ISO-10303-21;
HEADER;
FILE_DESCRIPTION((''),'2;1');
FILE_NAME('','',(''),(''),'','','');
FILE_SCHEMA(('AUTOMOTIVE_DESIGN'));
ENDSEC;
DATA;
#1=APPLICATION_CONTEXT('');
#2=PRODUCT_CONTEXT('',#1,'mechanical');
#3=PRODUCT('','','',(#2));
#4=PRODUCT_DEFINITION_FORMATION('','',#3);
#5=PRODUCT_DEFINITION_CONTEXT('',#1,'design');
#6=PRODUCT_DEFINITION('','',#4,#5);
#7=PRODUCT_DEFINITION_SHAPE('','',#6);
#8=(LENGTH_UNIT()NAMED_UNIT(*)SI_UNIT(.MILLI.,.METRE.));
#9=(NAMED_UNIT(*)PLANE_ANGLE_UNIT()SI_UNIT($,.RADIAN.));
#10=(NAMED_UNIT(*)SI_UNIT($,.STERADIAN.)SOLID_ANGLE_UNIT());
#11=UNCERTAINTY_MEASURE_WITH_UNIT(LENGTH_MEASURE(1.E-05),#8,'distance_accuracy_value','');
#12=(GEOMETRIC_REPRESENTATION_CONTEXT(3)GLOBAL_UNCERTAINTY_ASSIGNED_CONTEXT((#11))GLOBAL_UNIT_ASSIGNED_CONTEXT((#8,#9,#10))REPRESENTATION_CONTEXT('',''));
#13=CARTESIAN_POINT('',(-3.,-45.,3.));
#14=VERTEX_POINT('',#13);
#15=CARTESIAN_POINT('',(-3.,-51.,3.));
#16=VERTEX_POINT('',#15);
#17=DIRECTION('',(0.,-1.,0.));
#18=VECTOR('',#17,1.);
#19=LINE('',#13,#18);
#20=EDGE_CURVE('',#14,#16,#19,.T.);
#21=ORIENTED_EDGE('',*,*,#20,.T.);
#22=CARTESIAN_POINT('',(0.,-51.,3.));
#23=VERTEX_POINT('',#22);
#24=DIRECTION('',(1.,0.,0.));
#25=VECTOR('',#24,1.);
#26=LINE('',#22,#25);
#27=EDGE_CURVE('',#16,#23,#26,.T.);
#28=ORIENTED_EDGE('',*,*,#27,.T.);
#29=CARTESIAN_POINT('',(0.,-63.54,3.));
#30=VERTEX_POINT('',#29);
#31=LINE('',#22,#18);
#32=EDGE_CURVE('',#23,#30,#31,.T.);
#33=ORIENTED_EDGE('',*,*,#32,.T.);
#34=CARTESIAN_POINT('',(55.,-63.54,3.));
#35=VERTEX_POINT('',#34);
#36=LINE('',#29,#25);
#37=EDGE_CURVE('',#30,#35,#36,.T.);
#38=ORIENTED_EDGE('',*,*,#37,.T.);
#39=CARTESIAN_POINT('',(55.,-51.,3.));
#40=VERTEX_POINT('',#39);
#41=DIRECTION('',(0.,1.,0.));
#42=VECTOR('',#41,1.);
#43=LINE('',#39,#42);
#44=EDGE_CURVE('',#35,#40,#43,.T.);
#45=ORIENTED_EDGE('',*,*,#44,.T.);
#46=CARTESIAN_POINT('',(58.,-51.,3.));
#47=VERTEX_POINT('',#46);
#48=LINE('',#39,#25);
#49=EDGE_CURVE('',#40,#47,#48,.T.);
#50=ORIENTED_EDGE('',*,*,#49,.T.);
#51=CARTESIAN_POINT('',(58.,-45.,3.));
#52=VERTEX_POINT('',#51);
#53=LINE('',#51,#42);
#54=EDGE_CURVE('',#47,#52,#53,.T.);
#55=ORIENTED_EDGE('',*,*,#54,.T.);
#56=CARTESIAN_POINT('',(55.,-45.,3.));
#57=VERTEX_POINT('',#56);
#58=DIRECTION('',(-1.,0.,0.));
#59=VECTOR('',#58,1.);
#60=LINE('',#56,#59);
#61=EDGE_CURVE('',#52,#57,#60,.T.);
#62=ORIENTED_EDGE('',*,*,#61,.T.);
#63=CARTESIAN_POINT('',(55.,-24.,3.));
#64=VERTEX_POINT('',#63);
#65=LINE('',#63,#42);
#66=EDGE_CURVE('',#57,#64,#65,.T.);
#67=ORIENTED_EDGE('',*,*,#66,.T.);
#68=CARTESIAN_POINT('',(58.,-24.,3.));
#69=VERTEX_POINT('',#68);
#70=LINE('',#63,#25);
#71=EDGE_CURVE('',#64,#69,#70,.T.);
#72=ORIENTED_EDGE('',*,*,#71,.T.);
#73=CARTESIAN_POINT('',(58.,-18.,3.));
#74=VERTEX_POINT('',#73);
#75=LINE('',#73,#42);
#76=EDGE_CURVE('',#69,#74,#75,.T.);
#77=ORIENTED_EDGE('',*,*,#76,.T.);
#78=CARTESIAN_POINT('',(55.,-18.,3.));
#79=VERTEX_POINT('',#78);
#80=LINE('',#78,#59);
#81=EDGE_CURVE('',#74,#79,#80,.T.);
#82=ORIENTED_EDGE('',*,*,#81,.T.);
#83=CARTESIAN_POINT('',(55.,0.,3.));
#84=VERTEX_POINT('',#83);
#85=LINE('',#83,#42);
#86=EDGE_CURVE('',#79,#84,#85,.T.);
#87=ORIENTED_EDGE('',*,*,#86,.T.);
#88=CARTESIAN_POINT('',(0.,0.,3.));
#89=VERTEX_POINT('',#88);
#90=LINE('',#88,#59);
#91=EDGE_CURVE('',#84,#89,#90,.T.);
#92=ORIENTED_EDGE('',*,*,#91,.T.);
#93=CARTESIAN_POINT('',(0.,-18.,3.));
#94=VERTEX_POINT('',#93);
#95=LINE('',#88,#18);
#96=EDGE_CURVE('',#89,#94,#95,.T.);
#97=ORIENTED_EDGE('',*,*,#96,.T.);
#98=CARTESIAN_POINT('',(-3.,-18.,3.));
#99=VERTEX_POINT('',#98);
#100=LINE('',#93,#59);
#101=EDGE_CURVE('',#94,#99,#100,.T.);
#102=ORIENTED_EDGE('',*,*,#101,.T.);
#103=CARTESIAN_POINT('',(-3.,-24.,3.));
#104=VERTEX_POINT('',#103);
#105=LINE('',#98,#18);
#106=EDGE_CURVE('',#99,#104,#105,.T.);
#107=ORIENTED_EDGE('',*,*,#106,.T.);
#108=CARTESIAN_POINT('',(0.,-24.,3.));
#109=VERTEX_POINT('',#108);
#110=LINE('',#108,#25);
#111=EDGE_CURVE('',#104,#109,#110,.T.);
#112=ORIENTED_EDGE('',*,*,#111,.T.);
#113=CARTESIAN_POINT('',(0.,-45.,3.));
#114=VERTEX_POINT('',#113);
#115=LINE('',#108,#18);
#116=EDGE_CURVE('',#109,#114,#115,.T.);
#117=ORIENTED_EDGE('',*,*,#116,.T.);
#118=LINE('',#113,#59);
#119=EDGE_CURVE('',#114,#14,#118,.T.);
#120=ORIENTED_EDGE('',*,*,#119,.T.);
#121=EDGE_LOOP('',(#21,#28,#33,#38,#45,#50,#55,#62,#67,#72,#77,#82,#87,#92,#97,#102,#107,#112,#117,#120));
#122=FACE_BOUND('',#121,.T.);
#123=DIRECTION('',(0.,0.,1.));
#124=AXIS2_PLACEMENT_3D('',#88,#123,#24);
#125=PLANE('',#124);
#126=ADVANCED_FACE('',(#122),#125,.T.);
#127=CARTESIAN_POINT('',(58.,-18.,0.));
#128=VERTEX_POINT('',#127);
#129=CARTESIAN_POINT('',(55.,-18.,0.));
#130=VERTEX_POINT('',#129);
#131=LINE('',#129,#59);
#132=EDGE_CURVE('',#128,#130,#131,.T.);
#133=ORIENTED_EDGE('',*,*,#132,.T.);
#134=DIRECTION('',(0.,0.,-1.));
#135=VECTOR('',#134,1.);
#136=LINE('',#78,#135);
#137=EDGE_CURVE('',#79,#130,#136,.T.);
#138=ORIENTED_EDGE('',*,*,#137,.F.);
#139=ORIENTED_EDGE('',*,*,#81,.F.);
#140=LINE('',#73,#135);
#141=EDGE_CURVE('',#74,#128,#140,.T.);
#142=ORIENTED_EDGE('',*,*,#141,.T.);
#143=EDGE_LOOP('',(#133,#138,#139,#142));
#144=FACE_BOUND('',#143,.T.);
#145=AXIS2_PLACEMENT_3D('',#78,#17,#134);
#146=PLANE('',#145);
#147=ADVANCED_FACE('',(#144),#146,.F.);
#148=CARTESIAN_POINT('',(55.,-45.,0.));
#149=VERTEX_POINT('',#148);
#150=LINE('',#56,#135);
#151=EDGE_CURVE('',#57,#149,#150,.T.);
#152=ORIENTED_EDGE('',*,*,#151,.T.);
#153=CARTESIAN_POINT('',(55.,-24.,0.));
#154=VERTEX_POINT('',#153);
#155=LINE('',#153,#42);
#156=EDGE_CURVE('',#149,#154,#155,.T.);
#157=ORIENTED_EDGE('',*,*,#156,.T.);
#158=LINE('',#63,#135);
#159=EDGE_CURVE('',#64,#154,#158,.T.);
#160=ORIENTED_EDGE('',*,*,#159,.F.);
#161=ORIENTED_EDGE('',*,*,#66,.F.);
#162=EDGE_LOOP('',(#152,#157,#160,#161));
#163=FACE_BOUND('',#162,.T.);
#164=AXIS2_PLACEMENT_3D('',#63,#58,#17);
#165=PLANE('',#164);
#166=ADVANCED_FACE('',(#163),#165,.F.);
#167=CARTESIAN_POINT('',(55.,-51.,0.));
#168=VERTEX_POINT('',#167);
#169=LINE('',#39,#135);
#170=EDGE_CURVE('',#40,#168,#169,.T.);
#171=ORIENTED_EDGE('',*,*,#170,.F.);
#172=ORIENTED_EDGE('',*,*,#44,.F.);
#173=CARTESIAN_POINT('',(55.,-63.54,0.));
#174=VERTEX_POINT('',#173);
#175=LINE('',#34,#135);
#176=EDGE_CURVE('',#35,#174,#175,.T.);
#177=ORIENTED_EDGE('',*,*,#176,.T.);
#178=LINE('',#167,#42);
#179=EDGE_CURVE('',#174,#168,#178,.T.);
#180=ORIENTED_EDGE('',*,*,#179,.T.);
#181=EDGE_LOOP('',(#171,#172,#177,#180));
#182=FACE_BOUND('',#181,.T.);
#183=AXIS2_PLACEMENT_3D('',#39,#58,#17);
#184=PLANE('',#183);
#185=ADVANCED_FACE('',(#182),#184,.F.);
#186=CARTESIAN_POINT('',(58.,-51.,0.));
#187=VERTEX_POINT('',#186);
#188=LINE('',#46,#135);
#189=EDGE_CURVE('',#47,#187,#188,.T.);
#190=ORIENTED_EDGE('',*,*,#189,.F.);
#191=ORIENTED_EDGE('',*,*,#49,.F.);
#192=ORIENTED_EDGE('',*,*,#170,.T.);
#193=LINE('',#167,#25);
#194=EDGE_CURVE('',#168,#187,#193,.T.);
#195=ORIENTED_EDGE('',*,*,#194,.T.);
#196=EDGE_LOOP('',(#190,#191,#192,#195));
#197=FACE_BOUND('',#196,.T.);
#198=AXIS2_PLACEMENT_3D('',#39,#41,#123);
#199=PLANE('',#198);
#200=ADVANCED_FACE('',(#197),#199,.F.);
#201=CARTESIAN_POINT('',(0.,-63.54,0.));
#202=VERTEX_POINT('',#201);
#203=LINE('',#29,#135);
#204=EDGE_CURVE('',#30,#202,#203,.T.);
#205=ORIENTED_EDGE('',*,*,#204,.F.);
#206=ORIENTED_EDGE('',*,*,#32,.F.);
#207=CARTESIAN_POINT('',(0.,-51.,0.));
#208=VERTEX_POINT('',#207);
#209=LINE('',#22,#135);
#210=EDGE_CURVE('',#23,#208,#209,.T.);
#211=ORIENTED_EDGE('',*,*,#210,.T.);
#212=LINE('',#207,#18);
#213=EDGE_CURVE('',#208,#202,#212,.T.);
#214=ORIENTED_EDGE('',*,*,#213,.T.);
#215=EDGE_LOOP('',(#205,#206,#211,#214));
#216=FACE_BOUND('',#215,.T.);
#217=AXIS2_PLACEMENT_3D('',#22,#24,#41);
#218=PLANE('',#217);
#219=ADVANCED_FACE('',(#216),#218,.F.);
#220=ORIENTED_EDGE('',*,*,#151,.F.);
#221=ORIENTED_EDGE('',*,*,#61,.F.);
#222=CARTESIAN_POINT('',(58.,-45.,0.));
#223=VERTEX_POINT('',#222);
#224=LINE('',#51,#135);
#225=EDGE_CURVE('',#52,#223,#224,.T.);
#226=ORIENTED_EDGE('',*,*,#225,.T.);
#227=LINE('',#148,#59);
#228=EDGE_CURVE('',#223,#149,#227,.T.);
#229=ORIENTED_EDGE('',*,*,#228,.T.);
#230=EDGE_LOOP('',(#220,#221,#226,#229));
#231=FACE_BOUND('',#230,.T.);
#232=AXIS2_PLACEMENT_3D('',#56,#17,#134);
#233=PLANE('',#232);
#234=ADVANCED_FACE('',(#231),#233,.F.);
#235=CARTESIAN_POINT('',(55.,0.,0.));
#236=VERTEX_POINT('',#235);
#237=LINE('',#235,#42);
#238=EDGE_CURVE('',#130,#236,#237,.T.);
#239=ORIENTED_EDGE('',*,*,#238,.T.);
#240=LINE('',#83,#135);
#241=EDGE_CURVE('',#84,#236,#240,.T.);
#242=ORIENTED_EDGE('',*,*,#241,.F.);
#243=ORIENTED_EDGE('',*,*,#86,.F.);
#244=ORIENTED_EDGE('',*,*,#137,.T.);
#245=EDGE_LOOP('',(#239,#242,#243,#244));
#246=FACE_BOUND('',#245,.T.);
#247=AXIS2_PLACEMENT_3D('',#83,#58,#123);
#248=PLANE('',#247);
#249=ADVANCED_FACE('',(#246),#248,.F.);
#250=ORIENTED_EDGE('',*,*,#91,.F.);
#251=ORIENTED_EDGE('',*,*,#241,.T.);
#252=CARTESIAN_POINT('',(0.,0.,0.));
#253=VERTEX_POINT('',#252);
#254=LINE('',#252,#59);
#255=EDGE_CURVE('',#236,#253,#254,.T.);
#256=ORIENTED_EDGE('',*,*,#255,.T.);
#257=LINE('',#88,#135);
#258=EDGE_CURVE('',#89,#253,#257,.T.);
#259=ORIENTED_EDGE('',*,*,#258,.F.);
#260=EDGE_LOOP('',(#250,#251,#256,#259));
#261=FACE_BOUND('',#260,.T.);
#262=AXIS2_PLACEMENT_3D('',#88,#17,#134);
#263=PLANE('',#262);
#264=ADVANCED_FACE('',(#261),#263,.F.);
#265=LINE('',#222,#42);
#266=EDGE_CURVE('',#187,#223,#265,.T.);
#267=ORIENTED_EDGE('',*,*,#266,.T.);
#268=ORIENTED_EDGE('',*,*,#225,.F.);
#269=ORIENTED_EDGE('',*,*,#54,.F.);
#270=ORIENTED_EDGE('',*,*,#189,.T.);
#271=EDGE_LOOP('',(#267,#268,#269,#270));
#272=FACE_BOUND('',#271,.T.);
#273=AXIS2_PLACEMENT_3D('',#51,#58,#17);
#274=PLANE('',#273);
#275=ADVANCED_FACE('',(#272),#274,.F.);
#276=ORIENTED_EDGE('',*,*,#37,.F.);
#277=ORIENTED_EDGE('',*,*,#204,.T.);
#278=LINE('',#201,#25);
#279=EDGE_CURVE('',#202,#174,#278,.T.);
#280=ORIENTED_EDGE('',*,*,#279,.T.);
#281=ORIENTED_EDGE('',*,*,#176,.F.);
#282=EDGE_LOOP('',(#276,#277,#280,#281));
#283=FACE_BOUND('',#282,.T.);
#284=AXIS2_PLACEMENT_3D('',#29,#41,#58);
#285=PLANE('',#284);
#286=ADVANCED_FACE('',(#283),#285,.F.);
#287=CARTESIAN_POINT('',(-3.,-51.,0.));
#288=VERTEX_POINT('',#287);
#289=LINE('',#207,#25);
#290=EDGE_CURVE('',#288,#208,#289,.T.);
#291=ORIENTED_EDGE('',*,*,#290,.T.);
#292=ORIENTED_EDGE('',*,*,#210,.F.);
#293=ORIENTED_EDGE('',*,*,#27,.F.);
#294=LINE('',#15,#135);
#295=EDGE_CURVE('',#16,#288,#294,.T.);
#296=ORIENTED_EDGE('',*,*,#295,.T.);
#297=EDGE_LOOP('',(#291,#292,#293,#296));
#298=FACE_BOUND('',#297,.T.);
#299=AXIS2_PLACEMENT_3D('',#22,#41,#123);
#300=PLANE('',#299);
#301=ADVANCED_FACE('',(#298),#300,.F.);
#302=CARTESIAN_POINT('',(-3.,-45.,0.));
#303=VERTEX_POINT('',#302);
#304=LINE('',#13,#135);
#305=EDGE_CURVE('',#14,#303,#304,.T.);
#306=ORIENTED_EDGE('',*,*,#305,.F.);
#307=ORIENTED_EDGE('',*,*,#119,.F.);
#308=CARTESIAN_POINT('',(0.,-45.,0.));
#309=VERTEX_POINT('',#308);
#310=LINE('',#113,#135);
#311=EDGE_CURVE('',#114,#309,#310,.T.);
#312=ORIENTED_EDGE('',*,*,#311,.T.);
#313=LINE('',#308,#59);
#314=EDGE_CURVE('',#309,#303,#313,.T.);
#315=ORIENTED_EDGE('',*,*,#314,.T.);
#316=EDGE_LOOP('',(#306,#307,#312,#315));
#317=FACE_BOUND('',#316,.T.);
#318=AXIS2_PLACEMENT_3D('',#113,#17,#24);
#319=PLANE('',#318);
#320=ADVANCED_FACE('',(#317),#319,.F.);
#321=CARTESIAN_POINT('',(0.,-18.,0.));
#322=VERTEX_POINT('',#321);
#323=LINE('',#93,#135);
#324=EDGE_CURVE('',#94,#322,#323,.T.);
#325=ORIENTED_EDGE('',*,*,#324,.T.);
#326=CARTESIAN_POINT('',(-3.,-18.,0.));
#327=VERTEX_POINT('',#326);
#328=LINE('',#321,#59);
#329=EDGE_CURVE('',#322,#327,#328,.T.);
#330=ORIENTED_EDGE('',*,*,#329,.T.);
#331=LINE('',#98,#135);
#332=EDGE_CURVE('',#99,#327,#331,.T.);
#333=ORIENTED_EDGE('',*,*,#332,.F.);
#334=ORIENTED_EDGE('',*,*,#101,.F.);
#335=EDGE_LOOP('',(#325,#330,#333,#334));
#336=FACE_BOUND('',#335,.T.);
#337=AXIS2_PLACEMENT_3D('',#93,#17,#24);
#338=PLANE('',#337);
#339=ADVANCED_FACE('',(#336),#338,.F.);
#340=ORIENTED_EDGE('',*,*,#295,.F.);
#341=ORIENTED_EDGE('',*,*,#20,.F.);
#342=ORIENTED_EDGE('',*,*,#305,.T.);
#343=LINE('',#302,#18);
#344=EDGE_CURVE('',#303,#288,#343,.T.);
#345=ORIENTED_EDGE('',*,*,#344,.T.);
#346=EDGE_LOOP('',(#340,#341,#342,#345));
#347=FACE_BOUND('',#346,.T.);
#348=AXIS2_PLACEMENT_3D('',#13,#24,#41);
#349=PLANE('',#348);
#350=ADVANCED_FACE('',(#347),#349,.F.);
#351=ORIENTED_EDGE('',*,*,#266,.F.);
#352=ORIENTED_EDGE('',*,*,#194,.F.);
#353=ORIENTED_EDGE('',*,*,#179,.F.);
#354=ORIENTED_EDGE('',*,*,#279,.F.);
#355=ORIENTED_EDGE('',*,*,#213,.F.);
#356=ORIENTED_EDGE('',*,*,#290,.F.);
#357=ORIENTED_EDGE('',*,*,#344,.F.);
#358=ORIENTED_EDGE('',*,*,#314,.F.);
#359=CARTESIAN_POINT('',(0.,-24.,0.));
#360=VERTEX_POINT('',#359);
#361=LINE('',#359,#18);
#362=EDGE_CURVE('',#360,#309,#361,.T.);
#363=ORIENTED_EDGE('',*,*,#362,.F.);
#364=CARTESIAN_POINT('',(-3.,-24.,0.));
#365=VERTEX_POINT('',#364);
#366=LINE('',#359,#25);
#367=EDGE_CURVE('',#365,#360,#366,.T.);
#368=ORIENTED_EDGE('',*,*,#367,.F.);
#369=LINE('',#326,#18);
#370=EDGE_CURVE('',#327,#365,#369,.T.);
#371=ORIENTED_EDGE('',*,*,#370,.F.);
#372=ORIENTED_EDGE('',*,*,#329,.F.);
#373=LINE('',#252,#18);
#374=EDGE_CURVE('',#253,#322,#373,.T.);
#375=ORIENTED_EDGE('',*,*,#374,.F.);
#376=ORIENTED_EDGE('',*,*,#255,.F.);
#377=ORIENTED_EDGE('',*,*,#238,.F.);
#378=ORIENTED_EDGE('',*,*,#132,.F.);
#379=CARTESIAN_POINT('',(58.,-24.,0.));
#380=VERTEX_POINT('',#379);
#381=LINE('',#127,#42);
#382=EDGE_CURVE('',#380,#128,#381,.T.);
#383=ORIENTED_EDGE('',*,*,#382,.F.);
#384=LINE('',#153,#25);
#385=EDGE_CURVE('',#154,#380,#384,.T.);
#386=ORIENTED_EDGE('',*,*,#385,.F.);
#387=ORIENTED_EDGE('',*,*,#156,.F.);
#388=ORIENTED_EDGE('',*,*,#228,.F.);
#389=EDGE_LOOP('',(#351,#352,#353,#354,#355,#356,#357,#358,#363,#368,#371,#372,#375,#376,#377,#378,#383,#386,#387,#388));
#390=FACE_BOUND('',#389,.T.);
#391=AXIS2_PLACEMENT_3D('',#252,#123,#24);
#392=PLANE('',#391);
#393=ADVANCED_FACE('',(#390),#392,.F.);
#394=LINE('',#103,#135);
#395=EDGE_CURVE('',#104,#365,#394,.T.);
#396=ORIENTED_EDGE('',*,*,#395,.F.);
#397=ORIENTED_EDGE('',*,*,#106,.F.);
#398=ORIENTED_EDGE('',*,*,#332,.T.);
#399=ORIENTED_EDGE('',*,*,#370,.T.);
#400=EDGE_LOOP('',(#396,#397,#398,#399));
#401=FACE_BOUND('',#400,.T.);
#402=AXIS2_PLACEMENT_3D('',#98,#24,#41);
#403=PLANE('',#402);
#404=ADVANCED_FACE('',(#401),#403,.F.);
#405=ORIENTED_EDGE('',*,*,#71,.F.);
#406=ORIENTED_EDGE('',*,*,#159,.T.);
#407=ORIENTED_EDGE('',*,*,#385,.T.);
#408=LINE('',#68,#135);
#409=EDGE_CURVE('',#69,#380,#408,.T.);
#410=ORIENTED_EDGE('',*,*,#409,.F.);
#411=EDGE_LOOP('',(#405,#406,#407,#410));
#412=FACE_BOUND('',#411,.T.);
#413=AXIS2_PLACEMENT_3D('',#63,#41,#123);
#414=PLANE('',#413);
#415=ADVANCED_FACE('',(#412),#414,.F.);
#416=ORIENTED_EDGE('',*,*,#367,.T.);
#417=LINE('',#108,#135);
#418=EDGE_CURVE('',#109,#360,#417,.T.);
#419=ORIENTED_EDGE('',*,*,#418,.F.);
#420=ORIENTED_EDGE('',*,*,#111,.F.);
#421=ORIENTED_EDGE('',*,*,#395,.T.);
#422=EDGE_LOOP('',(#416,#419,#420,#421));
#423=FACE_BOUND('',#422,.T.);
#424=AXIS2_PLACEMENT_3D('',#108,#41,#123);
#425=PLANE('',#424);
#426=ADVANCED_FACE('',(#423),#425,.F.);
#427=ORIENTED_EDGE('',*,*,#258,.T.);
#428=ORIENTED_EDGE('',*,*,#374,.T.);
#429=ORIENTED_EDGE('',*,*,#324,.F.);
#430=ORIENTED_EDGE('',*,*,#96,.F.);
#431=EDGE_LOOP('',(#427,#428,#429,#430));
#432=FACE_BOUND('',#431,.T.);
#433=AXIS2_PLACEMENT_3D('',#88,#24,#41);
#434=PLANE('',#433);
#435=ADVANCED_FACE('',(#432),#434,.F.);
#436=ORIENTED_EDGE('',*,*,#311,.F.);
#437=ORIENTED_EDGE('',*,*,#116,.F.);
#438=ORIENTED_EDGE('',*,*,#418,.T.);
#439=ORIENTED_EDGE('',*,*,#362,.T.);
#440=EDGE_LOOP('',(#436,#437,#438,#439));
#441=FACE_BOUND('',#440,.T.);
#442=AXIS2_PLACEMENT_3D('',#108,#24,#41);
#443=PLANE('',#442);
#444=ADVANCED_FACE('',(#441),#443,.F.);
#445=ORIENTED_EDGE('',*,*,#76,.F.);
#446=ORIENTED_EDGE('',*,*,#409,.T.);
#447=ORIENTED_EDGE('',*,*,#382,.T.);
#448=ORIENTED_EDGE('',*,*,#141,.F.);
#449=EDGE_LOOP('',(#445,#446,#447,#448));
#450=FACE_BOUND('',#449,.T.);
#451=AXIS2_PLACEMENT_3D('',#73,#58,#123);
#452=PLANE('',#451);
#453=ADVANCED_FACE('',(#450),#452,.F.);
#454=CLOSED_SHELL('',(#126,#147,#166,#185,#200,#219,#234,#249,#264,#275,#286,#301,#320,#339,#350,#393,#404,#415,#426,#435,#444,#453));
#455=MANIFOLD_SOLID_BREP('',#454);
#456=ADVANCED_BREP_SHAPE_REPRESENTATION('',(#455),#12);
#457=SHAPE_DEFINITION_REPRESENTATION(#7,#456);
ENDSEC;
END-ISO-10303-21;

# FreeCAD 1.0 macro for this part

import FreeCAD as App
import Part
import Sketcher

V = App.Vector
Q = App.Units.Quantity


def add_polygon(sketch, points):
    """Adds a closed chain of lines whose ends are joined by coincident constraints."""
    first, n = sketch.GeometryCount, len(points)
    for a, b in zip(points, points[1:] + points[:1]):
        sketch.addGeometry(Part.LineSegment(App.Vector(*a, 0), App.Vector(*b, 0)), False)
    for i in range(n):
        sketch.addConstraint(Sketcher.Constraint("Coincident", first + i, 2, first + (i + 1) % n, 1))

doc = App.newDocument("Part")
body = doc.addObject("PartDesign::Body", "Body")

# Sketch on XY plane
sketch1 = body.newObject("Sketcher::SketchObject", "Sketch")
sketch1.AttachmentSupport = (doc.getObject("XY_Plane"), [""])
sketch1.MapMode = "FlatFace"
add_polygon(sketch1, [(55, 0), (0, 0), (0, -18), (-3, -18), (-3, -24), (0, -24), (0, -45), (-3, -45), (-3, -51), (0, -51), (0, -63.5), (55, -63.5), (55, -51), (58, -51), (58, -45), (55, -45), (55, -24), (58, -24), (58, -18), (55, -18)])  # lines 0-19
sketch1.addConstraint(Sketcher.Constraint("Horizontal", 0))
sketch1.addConstraint(Sketcher.Constraint("Vertical", 1))
sketch1.addConstraint(Sketcher.Constraint("Horizontal", 2))
sketch1.addConstraint(Sketcher.Constraint("Vertical", 3))
sketch1.addConstraint(Sketcher.Constraint("Horizontal", 4))
sketch1.addConstraint(Sketcher.Constraint("Vertical", 5))
sketch1.addConstraint(Sketcher.Constraint("Horizontal", 6))
sketch1.addConstraint(Sketcher.Constraint("Vertical", 7))
sketch1.addConstraint(Sketcher.Constraint("Horizontal", 8))
sketch1.addConstraint(Sketcher.Constraint("Vertical", 9))
sketch1.addConstraint(Sketcher.Constraint("Horizontal", 10))
sketch1.addConstraint(Sketcher.Constraint("Vertical", 11))
sketch1.addConstraint(Sketcher.Constraint("Horizontal", 12))
sketch1.addConstraint(Sketcher.Constraint("Vertical", 13))
sketch1.addConstraint(Sketcher.Constraint("Horizontal", 14))
sketch1.addConstraint(Sketcher.Constraint("Vertical", 15))
sketch1.addConstraint(Sketcher.Constraint("Horizontal", 16))
sketch1.addConstraint(Sketcher.Constraint("Vertical", 17))
sketch1.addConstraint(Sketcher.Constraint("Horizontal", 18))
sketch1.addConstraint(Sketcher.Constraint("Vertical", 19))
sketch1.addConstraint(Sketcher.Constraint("Coincident", 0, 2, -1, 1))
sketch1.addConstraint(Sketcher.Constraint("PointOnObject", 4, 2, -2))
sketch1.addConstraint(Sketcher.Constraint("PointOnObject", 8, 2, -2))
sketch1.addConstraint(Sketcher.Constraint("Horizontal", 8, 2, 11, 2))
sketch1.addConstraint(Sketcher.Constraint("Horizontal", 6, 2, 13, 2))
sketch1.addConstraint(Sketcher.Constraint("Horizontal", 4, 2, 15, 2))
sketch1.addConstraint(Sketcher.Constraint("Horizontal", 2, 2, 17, 2))
sketch1.addConstraint(Sketcher.Constraint("Vertical", 3, 2, 6, 2))
sketch1.addConstraint(Sketcher.Constraint("Vertical", 11, 2, 14, 2))
sketch1.addConstraint(Sketcher.Constraint("Vertical", 13, 2, 16, 2))
sketch1.addConstraint(Sketcher.Constraint("Vertical", 15, 2, 18, 2))
sketch1.addConstraint(Sketcher.Constraint("Equal", 8, 12))
sketch1.addConstraint(Sketcher.Constraint("Equal", 3, 7))
sketch1.addConstraint(Sketcher.Constraint("DistanceX", 0, 2, 0, 1, Q("55 mm")))
sketch1.addConstraint(Sketcher.Constraint("DistanceX", 2, 2, 2, 1, Q("3 mm")))
sketch1.addConstraint(Sketcher.Constraint("DistanceY", 1, 2, 1, 1, Q("18 mm")))
sketch1.addConstraint(Sketcher.Constraint("DistanceY", 3, 2, 3, 1, Q("6 mm")))
sketch1.addConstraint(Sketcher.Constraint("DistanceY", 5, 2, 5, 1, Q("21 mm")))
sketch1.addConstraint(Sketcher.Constraint("DistanceY", 9, 2, 9, 1, Q("12.54 mm")))
pad1 = body.newObject("PartDesign::Pad", "Pad")
pad1.Profile = sketch1
pad1.Length = 3

doc.recompute()
